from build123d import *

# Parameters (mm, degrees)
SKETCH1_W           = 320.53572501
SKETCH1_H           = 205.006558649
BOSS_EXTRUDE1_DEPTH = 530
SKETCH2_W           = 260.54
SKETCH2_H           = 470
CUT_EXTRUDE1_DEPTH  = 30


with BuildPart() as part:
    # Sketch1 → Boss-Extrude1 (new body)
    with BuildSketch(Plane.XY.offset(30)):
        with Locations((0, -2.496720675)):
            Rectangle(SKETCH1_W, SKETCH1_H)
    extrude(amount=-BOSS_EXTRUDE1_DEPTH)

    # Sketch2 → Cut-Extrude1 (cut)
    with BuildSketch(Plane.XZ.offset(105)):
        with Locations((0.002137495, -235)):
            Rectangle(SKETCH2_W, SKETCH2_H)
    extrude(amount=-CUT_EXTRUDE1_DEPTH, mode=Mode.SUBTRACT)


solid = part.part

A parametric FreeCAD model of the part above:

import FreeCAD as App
import Part
import Sketcher
from FreeCAD import Vector

doc = App.newDocument("Part")
body = doc.addObject("PartDesign::Body", "Body")

# Sketch on XY plane
sketch1 = body.newObject("Sketcher::SketchObject", "Sketch")
sketch1.AttachmentSupport = (doc.getObject("XY_Plane"), [""])
sketch1.MapMode = "FlatFace"
sketch1.AttachmentOffset = App.Placement(Vector(0, 0, 30), App.Rotation())
sketch1.addGeometry([
    Part.LineSegment(Vector(-160, 100, 0), Vector(-160, -105, 0)),
    Part.LineSegment(Vector(-160, -105, 0), Vector(160, -105, 0)),
    Part.LineSegment(Vector(160, -105, 0), Vector(160, 100, 0)),
    Part.LineSegment(Vector(160, 100, 0), Vector(-160, 100, 0)),
], False)
sketch1.addConstraint([
    Sketcher.Constraint("Coincident", 0, 2, 1, 1),
    Sketcher.Constraint("Coincident", 1, 2, 2, 1),
    Sketcher.Constraint("Coincident", 2, 2, 3, 1),
    Sketcher.Constraint("Coincident", 3, 2, 0, 1),
    Sketcher.Constraint("Vertical", 0),
    Sketcher.Constraint("Horizontal", 1),
    Sketcher.Constraint("Vertical", 2),
    Sketcher.Constraint("Horizontal", 3),
    Sketcher.Constraint("DistanceY", 0, 2, -1, 1, 105.0),
    Sketcher.Constraint("DistanceY", 0, 2, 0, 1, 205.006559),
    Sketcher.Constraint("DistanceX", 1, 1, 1, 2, 320.535725),
    Sketcher.Constraint("DistanceX", 0, 2, -1, 1, 160.267863),
])
pad1 = body.newObject("PartDesign::Pad", "Pad")
pad1.Profile = sketch1
pad1.Length = 530
pad1.Reversed = True

# Sketch on XZ plane
sketch2 = body.newObject("Sketcher::SketchObject", "Sketch001")
sketch2.AttachmentSupport = (doc.getObject("XZ_Plane"), [""])
sketch2.MapMode = "FlatFace"
sketch2.AttachmentOffset = App.Placement(Vector(0, 0, 105), App.Rotation())
sketch2.addGeometry([
    Part.LineSegment(Vector(-130, 0, 0), Vector(-130, -470, 0)),
    Part.LineSegment(Vector(-130, -470, 0), Vector(130, -470, 0)),
    Part.LineSegment(Vector(130, -470, 0), Vector(130, 0, 0)),
    Part.LineSegment(Vector(130, 0, 0), Vector(-130, 0, 0)),
], False)
sketch2.addConstraint([
    Sketcher.Constraint("Coincident", 0, 2, 1, 1),
    Sketcher.Constraint("Coincident", 1, 2, 2, 1),
    Sketcher.Constraint("Coincident", 2, 2, 3, 1),
    Sketcher.Constraint("Coincident", 3, 2, 0, 1),
    Sketcher.Constraint("Vertical", 0),
    Sketcher.Constraint("Horizontal", 1),
    Sketcher.Constraint("Vertical", 2),
    Sketcher.Constraint("Horizontal", 3),
    Sketcher.Constraint("PointOnObject", 2, 2, -1),
    Sketcher.Constraint("DistanceY", 0, 2, 0, 1, 470.0),
    Sketcher.Constraint("DistanceX", 1, 1, 1, 2, 260.54),
    Sketcher.Constraint("DistanceX", 0, 2, -1, 1, 130.267863),
])
pocket1 = body.newObject("PartDesign::Pocket", "Pocket")
pocket1.Profile = sketch2
pocket1.Length = 30

doc.recompute()
